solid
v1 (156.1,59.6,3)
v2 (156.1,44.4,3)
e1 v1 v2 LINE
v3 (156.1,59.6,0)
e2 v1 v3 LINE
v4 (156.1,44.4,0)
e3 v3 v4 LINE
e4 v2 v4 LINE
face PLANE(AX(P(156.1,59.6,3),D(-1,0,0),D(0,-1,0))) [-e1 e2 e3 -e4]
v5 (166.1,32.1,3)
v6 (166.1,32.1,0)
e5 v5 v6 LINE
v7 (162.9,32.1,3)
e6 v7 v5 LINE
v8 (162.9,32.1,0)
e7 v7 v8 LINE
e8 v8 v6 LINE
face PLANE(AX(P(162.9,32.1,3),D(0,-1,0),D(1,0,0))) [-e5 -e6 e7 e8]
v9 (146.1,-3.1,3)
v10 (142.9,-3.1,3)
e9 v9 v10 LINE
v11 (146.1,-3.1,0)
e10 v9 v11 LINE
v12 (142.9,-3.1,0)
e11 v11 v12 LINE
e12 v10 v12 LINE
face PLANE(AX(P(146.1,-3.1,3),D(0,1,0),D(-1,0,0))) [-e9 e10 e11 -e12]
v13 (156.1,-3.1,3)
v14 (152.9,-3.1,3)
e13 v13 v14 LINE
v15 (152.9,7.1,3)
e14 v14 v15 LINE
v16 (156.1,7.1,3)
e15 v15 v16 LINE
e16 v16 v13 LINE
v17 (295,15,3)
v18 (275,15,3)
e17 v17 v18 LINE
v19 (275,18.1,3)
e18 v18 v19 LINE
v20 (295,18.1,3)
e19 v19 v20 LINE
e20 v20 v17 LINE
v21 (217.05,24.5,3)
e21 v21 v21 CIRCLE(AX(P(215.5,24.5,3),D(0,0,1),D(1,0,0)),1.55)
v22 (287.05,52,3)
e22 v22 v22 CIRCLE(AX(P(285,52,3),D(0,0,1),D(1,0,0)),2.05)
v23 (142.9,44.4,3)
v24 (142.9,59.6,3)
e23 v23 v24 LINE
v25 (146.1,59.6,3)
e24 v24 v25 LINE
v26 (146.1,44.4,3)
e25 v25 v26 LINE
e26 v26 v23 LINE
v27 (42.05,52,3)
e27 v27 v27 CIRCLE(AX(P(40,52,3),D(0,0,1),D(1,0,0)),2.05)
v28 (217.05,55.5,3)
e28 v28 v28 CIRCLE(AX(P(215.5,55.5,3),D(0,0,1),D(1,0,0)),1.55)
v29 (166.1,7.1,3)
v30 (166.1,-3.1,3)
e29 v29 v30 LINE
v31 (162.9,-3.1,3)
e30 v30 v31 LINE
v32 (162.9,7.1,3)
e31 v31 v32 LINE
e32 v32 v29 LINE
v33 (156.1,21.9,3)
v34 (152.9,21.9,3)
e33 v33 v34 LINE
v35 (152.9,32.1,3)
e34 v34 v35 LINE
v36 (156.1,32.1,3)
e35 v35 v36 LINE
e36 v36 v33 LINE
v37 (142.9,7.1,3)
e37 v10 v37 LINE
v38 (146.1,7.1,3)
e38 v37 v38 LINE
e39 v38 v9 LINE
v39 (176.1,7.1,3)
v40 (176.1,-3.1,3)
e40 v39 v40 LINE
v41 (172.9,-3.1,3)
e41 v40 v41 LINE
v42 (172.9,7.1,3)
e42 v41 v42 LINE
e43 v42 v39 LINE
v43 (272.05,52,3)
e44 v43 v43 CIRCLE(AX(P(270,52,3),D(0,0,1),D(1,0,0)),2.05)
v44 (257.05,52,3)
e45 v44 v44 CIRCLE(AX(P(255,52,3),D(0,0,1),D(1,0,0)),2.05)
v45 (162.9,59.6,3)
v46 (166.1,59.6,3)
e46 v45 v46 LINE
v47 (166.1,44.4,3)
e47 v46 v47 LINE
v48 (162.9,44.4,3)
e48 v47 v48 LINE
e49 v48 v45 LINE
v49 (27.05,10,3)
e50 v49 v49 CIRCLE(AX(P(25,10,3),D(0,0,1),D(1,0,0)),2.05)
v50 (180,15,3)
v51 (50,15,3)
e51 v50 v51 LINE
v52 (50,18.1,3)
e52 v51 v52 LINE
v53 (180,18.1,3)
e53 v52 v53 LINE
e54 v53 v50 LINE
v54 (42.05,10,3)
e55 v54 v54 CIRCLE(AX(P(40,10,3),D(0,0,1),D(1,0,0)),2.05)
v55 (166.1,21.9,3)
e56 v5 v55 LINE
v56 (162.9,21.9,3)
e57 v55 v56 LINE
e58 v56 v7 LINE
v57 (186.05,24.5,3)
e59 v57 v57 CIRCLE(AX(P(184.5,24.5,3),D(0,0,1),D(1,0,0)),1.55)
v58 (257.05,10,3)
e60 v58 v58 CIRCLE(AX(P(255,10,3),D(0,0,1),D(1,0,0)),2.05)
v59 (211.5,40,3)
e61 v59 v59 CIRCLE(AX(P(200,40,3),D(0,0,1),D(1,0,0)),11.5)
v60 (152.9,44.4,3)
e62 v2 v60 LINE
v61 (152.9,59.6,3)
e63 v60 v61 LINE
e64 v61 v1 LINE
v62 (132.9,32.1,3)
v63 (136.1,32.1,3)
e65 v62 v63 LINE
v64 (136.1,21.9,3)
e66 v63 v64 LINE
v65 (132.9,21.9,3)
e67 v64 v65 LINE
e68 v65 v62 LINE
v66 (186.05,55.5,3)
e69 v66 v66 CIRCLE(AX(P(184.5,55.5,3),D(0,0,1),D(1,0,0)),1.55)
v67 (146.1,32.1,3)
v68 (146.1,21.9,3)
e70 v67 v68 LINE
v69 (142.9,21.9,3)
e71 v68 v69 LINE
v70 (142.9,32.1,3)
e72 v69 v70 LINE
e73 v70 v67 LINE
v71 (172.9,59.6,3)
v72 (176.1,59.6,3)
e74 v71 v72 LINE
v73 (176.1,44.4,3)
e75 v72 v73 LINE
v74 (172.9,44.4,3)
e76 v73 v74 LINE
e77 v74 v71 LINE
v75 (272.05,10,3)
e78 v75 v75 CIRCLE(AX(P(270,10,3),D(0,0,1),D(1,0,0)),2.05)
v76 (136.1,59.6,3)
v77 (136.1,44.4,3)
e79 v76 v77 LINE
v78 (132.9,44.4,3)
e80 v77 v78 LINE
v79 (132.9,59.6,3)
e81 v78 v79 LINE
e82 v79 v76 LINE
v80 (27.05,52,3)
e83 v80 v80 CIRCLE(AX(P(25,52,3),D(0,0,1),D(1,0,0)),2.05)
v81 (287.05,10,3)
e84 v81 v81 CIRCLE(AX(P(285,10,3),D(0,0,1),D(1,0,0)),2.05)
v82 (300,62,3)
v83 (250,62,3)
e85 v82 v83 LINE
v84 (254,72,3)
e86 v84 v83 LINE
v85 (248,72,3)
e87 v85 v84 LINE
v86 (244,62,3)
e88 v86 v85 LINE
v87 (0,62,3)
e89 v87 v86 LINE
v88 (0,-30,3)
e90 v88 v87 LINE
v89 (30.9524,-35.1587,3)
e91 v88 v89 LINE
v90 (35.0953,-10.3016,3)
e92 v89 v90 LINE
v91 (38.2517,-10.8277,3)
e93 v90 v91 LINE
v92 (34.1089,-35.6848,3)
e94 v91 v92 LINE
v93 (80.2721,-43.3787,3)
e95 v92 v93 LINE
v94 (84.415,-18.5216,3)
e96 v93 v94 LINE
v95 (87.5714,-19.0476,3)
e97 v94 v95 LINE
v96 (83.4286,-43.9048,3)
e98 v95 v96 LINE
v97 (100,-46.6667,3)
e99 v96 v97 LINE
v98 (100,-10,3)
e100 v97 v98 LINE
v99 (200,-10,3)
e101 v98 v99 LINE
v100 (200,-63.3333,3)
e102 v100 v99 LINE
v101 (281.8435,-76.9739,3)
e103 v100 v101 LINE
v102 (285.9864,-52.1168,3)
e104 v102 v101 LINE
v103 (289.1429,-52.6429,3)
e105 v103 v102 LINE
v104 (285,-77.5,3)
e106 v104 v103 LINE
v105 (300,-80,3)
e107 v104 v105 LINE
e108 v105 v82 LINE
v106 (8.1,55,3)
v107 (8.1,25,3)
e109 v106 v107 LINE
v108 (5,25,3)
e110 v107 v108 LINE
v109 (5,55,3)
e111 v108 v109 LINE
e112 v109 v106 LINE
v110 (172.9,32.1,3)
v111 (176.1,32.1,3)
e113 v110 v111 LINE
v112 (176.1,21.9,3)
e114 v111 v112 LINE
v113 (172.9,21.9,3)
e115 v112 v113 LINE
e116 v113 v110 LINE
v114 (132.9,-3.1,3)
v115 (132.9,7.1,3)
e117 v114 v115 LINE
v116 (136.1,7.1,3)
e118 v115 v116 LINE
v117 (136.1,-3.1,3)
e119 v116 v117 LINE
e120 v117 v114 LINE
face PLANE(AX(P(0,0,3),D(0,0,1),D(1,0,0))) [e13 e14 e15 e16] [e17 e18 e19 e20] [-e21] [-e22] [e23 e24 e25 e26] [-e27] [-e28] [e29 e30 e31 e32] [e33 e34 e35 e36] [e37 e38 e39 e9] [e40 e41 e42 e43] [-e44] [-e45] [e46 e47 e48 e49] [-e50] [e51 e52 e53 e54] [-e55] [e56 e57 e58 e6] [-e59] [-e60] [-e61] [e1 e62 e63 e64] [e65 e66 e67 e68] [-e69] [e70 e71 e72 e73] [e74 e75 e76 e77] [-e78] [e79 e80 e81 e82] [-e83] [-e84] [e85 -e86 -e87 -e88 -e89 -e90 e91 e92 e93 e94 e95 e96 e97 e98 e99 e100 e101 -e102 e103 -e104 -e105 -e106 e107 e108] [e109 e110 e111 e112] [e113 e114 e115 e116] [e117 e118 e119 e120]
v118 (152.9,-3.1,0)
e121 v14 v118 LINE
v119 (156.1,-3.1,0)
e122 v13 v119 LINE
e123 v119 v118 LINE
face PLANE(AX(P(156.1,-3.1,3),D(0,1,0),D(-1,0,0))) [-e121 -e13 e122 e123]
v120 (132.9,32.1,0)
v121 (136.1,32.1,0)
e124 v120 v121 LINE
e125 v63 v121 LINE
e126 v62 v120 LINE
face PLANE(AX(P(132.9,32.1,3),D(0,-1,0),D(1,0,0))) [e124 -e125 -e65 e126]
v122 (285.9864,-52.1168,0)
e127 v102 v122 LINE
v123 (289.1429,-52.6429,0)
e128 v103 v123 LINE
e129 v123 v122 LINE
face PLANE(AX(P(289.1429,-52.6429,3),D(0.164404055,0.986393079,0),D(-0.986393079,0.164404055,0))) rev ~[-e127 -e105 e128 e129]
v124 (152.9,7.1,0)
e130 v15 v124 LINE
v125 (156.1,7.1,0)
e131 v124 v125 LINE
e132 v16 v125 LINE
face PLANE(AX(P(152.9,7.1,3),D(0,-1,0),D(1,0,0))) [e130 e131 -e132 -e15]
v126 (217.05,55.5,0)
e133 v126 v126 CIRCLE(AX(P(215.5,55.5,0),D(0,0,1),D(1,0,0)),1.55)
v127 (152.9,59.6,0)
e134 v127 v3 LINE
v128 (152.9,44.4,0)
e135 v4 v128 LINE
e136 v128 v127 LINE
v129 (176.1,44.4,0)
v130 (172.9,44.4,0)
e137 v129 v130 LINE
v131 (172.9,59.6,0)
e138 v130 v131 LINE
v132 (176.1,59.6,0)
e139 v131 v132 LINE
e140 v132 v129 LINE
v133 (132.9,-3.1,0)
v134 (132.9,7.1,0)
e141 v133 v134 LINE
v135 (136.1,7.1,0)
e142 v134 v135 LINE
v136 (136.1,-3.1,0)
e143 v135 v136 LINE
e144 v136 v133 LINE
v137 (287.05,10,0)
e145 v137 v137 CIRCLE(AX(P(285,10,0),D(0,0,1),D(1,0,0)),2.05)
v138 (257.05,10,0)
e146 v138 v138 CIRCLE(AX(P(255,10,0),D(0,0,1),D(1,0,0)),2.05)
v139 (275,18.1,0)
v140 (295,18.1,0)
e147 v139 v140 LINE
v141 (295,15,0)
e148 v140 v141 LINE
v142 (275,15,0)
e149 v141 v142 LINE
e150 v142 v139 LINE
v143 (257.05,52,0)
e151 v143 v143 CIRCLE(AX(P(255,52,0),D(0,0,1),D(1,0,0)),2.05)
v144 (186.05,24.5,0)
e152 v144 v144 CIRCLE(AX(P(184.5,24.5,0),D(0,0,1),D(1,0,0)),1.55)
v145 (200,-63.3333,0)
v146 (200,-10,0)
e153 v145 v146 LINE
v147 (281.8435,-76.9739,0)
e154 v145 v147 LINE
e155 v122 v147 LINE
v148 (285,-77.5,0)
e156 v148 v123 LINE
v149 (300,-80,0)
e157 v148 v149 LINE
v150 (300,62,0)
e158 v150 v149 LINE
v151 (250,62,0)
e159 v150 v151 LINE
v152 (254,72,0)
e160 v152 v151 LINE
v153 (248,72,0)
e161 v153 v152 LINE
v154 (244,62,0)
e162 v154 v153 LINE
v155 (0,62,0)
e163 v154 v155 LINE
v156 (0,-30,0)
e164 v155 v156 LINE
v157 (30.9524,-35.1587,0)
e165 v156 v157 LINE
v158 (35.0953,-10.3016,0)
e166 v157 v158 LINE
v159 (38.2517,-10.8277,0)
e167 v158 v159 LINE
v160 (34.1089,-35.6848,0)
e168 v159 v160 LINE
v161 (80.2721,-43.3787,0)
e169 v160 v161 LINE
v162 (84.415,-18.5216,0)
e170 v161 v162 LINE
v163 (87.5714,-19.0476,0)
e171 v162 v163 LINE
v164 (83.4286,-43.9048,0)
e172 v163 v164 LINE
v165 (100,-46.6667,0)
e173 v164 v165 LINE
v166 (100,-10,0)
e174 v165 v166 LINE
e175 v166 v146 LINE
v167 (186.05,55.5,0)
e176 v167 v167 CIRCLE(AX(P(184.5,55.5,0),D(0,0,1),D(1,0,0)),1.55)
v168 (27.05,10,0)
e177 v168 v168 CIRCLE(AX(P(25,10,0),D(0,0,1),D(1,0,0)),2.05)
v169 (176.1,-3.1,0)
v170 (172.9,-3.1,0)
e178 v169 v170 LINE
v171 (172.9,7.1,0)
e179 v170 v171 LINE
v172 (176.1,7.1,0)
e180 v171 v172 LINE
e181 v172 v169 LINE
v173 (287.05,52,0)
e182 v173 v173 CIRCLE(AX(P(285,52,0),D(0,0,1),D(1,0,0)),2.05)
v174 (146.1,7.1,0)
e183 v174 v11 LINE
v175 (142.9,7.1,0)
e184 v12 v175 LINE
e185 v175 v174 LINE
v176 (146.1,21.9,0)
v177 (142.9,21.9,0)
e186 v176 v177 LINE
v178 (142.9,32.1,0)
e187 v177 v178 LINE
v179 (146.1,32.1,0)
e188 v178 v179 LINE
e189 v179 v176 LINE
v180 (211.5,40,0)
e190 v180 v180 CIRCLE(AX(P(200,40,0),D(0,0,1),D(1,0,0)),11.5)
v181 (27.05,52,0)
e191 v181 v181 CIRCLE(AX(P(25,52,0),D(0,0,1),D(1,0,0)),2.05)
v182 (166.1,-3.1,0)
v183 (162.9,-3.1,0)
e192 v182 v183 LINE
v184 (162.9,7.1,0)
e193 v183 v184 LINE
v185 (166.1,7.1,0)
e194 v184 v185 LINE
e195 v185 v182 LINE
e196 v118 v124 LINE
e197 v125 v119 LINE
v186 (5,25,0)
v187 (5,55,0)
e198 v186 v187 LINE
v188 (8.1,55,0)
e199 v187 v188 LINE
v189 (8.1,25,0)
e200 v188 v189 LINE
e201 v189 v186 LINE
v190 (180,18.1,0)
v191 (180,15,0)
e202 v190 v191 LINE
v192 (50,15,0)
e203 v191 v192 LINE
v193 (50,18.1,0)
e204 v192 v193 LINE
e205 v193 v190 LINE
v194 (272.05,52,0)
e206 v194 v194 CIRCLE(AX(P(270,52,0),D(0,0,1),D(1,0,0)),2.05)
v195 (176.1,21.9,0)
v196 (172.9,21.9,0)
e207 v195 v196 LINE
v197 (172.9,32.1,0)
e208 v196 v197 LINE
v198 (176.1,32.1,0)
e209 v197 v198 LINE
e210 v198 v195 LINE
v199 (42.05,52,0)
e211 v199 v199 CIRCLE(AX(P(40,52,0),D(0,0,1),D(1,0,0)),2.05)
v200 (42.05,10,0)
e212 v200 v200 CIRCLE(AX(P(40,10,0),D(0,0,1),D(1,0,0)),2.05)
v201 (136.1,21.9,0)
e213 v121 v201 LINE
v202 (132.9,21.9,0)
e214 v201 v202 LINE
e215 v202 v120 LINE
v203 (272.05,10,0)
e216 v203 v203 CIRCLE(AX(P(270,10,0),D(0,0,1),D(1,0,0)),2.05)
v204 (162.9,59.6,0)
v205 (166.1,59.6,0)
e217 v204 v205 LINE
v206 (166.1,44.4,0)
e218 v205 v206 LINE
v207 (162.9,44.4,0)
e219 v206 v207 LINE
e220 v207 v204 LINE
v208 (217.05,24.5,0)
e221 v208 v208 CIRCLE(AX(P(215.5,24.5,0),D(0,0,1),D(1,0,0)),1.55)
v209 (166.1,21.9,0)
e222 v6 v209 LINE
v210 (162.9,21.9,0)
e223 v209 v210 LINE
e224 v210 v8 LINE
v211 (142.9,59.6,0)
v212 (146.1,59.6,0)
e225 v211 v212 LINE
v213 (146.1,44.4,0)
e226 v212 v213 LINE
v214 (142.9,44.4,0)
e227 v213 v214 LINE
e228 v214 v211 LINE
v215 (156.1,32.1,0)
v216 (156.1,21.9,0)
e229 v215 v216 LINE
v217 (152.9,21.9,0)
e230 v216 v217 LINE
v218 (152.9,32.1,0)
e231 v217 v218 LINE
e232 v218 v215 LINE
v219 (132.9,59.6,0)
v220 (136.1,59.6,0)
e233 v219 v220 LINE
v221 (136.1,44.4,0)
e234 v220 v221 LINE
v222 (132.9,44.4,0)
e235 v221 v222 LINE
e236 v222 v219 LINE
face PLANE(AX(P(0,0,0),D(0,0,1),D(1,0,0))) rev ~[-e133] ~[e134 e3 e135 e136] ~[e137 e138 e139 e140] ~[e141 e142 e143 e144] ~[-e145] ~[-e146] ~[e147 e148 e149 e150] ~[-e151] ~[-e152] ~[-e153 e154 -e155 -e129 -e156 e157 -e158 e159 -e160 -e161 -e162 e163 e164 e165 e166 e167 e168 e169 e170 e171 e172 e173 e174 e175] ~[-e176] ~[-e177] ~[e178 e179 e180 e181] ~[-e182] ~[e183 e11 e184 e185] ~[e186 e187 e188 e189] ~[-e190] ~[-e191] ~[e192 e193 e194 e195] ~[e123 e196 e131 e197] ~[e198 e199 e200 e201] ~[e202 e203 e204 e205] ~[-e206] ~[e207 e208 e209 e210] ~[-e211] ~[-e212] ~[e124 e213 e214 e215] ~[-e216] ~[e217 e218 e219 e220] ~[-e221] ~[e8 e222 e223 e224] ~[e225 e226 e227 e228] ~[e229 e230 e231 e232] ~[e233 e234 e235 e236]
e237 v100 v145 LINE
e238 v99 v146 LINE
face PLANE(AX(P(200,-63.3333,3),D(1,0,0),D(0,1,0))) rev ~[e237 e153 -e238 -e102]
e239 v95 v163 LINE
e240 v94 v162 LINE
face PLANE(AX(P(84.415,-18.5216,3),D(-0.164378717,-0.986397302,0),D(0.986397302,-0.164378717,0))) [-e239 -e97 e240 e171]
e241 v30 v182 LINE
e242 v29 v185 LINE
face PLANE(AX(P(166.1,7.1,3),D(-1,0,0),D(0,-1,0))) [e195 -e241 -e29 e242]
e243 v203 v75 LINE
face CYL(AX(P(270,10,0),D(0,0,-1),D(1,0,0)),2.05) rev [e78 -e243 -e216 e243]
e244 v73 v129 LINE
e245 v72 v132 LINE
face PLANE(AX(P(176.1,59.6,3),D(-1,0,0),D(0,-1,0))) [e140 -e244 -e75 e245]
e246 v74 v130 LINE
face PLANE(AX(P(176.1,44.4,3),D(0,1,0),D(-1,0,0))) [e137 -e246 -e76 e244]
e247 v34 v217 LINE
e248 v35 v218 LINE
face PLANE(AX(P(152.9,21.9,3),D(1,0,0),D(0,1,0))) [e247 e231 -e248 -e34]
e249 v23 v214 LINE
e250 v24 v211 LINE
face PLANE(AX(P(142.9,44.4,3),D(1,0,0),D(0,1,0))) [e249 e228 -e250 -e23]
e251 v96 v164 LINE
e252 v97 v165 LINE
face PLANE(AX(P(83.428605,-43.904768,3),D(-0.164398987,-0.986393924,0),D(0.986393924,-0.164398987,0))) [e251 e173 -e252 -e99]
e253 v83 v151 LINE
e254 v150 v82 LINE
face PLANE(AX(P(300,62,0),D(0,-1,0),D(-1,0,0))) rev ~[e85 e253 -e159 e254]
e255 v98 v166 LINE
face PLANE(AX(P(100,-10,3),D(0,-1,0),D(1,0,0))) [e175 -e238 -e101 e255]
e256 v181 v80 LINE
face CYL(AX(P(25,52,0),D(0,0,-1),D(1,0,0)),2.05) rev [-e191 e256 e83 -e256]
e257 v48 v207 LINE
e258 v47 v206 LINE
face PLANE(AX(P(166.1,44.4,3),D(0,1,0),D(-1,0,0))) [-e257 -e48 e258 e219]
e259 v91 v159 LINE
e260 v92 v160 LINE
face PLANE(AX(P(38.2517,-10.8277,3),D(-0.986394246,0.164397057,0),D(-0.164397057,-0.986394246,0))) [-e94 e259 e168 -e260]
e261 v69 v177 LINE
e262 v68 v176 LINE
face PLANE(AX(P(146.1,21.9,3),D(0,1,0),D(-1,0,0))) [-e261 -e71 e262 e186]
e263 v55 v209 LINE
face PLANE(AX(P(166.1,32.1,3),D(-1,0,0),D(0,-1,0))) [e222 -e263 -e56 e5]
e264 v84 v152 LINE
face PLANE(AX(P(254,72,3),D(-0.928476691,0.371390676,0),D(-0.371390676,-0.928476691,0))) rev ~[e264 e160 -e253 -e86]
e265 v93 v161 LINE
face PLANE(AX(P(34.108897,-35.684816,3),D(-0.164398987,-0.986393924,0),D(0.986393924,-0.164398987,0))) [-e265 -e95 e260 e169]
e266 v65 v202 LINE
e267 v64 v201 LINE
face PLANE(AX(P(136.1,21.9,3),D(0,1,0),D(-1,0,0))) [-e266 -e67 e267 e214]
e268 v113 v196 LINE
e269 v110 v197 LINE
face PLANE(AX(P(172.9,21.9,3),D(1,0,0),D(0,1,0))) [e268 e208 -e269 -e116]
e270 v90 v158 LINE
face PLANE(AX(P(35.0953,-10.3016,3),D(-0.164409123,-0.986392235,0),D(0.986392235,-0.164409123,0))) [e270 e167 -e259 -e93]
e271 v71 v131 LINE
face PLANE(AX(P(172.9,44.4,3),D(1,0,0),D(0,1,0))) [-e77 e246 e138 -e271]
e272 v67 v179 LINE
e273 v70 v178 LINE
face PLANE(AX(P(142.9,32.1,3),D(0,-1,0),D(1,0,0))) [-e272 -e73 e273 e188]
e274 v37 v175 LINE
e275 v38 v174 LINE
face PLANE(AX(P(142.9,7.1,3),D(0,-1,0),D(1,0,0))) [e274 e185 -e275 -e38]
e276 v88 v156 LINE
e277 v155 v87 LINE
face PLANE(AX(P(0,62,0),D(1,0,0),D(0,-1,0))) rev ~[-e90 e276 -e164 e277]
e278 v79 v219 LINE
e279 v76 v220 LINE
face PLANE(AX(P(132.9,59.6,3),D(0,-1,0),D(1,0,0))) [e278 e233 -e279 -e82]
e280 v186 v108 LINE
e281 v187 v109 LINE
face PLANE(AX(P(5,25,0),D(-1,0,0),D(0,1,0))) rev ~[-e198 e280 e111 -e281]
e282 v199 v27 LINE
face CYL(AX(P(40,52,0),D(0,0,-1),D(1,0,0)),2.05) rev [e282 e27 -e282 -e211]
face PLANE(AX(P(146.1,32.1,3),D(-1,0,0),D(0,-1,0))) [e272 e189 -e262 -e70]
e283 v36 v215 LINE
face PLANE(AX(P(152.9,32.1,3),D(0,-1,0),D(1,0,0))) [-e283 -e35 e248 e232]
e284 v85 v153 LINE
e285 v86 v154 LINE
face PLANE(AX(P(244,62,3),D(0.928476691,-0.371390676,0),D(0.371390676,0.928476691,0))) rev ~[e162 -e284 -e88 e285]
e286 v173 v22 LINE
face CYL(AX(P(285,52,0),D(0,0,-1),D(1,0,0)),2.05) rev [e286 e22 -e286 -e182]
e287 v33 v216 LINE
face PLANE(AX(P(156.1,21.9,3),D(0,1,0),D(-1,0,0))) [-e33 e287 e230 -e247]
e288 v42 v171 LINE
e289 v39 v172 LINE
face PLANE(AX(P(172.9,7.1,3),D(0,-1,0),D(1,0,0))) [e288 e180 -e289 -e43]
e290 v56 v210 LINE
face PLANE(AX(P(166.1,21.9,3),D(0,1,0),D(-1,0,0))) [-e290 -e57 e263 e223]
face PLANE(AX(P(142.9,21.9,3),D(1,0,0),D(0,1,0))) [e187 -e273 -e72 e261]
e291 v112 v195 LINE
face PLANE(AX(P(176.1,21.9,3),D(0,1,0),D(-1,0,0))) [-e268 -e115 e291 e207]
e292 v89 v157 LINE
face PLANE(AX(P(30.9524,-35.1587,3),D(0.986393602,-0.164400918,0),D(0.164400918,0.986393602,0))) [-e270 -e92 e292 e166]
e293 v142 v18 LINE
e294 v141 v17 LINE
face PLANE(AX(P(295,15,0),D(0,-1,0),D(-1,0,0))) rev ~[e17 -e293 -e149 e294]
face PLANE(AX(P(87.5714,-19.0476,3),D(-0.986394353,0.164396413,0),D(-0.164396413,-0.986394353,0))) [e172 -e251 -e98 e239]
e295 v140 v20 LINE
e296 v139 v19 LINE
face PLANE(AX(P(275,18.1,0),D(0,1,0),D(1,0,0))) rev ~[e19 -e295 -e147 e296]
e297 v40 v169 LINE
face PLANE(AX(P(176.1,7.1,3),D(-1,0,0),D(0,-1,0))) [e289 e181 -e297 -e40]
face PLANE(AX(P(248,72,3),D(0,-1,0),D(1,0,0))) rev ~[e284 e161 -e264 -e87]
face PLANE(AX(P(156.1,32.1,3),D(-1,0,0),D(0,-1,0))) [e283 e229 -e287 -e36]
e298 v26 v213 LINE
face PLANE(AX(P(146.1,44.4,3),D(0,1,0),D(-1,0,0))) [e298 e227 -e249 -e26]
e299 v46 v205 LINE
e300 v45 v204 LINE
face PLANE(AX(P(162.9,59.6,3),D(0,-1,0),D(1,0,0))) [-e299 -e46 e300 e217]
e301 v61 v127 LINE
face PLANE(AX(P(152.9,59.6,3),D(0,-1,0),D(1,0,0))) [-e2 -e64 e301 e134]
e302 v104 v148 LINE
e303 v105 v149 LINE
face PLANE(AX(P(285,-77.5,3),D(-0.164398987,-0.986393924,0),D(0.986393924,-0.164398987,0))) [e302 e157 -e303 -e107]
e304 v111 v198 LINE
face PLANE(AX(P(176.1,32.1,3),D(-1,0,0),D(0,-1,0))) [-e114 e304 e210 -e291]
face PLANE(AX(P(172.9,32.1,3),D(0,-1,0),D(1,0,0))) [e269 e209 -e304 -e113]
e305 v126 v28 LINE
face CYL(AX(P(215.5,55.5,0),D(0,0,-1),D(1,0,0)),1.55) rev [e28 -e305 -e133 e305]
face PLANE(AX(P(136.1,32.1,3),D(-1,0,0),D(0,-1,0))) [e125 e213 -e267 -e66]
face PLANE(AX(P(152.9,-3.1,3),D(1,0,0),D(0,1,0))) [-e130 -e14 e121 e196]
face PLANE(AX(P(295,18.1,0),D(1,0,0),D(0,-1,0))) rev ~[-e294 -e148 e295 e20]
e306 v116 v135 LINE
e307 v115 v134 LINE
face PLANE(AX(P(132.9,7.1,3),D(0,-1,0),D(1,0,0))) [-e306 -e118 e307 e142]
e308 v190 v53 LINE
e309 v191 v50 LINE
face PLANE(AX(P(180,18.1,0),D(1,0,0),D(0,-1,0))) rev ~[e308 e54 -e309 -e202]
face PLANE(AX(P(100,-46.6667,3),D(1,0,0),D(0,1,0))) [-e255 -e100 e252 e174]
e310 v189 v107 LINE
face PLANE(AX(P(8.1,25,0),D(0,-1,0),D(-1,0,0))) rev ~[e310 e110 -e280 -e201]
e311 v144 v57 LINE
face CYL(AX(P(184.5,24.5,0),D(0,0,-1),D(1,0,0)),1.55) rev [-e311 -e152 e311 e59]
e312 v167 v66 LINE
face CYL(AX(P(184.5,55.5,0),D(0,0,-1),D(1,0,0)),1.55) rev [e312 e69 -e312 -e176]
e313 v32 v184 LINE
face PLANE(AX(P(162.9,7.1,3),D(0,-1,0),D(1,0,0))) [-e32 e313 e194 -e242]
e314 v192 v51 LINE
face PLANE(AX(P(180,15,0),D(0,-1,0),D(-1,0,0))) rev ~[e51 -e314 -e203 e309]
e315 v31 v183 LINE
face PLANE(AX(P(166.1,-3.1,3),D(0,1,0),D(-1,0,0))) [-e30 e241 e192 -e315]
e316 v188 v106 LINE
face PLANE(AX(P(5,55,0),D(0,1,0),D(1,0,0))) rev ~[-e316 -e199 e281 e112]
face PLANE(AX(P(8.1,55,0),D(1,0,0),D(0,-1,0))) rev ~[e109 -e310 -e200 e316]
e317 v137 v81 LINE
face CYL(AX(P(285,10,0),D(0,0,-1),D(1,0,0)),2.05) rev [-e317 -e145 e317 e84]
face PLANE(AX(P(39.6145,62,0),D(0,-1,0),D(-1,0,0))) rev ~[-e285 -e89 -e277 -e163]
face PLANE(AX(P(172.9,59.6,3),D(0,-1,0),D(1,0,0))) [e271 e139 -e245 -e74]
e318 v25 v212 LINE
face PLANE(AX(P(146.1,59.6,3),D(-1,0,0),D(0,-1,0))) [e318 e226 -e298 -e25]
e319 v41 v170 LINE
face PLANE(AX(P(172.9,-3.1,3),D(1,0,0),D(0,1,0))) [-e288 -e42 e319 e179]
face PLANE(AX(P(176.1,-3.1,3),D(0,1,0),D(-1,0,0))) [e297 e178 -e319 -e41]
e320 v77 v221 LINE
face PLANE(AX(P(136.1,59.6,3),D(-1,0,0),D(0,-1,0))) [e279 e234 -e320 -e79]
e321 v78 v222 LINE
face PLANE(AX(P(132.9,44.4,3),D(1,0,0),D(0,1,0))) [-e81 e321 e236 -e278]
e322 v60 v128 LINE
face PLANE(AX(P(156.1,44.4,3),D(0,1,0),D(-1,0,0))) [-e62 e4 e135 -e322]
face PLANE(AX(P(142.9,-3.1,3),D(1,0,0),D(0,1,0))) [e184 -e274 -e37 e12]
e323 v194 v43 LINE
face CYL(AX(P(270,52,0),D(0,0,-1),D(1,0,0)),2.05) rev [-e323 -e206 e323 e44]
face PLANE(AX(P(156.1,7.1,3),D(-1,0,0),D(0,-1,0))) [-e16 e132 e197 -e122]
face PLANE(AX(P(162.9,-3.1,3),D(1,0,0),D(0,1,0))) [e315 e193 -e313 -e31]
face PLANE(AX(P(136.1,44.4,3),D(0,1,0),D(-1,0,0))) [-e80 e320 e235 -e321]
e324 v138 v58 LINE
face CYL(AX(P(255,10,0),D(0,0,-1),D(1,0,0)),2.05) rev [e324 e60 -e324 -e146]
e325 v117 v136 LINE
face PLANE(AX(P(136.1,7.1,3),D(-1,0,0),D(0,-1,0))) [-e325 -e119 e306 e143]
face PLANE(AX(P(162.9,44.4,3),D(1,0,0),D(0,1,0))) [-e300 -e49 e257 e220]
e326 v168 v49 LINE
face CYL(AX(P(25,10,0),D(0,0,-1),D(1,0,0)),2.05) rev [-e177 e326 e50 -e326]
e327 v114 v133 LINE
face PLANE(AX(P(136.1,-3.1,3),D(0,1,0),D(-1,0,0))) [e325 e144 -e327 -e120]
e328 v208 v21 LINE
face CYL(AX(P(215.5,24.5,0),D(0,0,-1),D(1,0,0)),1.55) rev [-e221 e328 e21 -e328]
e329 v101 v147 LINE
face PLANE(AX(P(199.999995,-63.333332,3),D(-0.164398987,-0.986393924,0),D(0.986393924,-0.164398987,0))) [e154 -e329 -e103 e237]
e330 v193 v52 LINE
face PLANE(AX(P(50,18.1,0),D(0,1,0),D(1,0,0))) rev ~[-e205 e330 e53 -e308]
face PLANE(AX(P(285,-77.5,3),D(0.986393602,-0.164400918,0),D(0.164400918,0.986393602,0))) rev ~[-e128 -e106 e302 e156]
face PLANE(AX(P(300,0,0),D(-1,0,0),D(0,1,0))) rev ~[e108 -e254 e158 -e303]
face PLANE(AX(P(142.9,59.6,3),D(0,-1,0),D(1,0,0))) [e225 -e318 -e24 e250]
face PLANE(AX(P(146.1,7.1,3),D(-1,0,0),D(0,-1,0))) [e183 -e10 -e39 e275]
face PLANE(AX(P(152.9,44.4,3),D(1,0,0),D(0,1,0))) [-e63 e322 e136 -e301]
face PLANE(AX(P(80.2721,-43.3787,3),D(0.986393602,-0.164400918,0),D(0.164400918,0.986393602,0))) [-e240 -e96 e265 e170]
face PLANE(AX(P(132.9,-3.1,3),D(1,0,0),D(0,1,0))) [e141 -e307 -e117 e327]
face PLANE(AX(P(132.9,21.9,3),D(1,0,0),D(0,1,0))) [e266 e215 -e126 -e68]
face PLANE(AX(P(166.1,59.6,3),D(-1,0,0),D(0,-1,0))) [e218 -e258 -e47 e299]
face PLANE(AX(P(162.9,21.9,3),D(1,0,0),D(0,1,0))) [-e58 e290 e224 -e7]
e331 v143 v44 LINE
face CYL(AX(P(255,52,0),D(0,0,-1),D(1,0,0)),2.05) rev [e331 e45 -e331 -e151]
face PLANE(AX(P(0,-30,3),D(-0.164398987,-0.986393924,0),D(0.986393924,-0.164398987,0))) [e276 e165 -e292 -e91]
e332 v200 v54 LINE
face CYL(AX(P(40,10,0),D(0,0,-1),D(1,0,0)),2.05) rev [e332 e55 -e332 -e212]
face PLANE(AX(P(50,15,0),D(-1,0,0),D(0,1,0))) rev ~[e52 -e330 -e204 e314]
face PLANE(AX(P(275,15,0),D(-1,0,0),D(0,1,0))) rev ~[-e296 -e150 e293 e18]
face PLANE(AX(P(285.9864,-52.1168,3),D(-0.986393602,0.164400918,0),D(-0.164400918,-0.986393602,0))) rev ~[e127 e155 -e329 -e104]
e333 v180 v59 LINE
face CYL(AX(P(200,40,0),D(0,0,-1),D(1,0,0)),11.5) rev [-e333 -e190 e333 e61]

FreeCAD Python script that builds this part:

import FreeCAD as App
import Part
import Sketcher
Q = App.Units.Quantity


def add_polygon(sketch, points):
    """Adds a closed chain of lines whose ends are joined by coincident constraints."""
    first, n = sketch.GeometryCount, len(points)
    for a, b in zip(points, points[1:] + points[:1]):
        sketch.addGeometry(Part.LineSegment(App.Vector(*a, 0), App.Vector(*b, 0)), False)
    for i in range(n):
        sketch.addConstraint(Sketcher.Constraint("Coincident", first + i, 2, first + (i + 1) % n, 1))

doc = App.newDocument("Part")
body = doc.addObject("PartDesign::Body", "Body")

# Sketch on XY plane
sketch1 = doc.addObject("Sketcher::SketchObject", "Sketch")
body.addObject(sketch1)
sketch1.AttachmentSupport = (doc.XY_Plane, [""])
sketch1.MapMode = "FlatFace"
add_polygon(sketch1, [(0, 62), (0, 0), (300, 0), (300, 62)])  # lines 0-3
sketch1.addGeometry(Part.Circle(App.Vector(25, 10, 0), App.Vector(0, 0, 1), 2.05), False)  # 4
sketch1.addGeometry(Part.Circle(App.Vector(40, 10, 0), App.Vector(0, 0, 1), 2.05), False)  # 5
add_polygon(sketch1, [(50, 15), (50, 18.1), (180, 18.1), (180, 15)])  # lines 6-9
sketch1.addGeometry(Part.Circle(App.Vector(255, 10, 0), App.Vector(0, 0, 1), 2.05), False)  # 10
sketch1.addGeometry(Part.Circle(App.Vector(270, 10, 0), App.Vector(0, 0, 1), 2.05), False)  # 11
sketch1.addGeometry(Part.Circle(App.Vector(285, 10, 0), App.Vector(0, 0, 1), 2.05), False)  # 12
sketch1.addGeometry(Part.Circle(App.Vector(184.5, 24.5, 0), App.Vector(0, 0, 1), 1.55), False)  # 13
sketch1.addGeometry(Part.Circle(App.Vector(215.5, 24.5, 0), App.Vector(0, 0, 1), 1.55), False)  # 14
add_polygon(sketch1, [(275, 15), (275, 18.1), (295, 18.1), (295, 15)])  # lines 15-18
add_polygon(sketch1, [(8.1, 55), (8.1, 25), (5, 25), (5, 55)])  # lines 19-22
sketch1.addGeometry(Part.Circle(App.Vector(25, 52, 0), App.Vector(0, 0, 1), 2.05), False)  # 23
sketch1.addGeometry(Part.Circle(App.Vector(40, 52, 0), App.Vector(0, 0, 1), 2.05), False)  # 24
sketch1.addGeometry(Part.Circle(App.Vector(200, 40, 0), App.Vector(0, 0, 1), 11.5), False)  # 25
sketch1.addGeometry(Part.Circle(App.Vector(184.5, 55.5, 0), App.Vector(0, 0, 1), 1.55), False)  # 26
sketch1.addGeometry(Part.Circle(App.Vector(215.5, 55.5, 0), App.Vector(0, 0, 1), 1.55), False)  # 27
sketch1.addGeometry(Part.Circle(App.Vector(255, 52, 0), App.Vector(0, 0, 1), 2.05), False)  # 28
sketch1.addGeometry(Part.Circle(App.Vector(270, 52, 0), App.Vector(0, 0, 1), 2.05), False)  # 29
sketch1.addGeometry(Part.Circle(App.Vector(285, 52, 0), App.Vector(0, 0, 1), 2.05), False)  # 30
sketch1.addConstraint(Sketcher.Constraint("Vertical", 0))
sketch1.addConstraint(Sketcher.Constraint("Horizontal", 1))
sketch1.addConstraint(Sketcher.Constraint("Vertical", 2))
sketch1.addConstraint(Sketcher.Constraint("Horizontal", 3))
sketch1.addConstraint(Sketcher.Constraint("Vertical", 6))
sketch1.addConstraint(Sketcher.Constraint("Horizontal", 7))
sketch1.addConstraint(Sketcher.Constraint("Vertical", 8))
sketch1.addConstraint(Sketcher.Constraint("Horizontal", 9))
sketch1.addConstraint(Sketcher.Constraint("Vertical", 15))
sketch1.addConstraint(Sketcher.Constraint("Horizontal", 16))
sketch1.addConstraint(Sketcher.Constraint("Vertical", 17))
sketch1.addConstraint(Sketcher.Constraint("Horizontal", 18))
sketch1.addConstraint(Sketcher.Constraint("Vertical", 19))
sketch1.addConstraint(Sketcher.Constraint("Horizontal", 20))
sketch1.addConstraint(Sketcher.Constraint("Vertical", 21))
sketch1.addConstraint(Sketcher.Constraint("Horizontal", 22))
sketch1.addConstraint(Sketcher.Constraint("Coincident", 0, 2, -1, 1))
sketch1.addConstraint(Sketcher.Constraint("Equal", 4, 5))
sketch1.addConstraint(Sketcher.Constraint("Equal", 5, 10))
sketch1.addConstraint(Sketcher.Constraint("Equal", 10, 11))
sketch1.addConstraint(Sketcher.Constraint("Equal", 11, 12))
sketch1.addConstraint(Sketcher.Constraint("Equal", 13, 14))
sketch1.addConstraint(Sketcher.Constraint("Equal", 12, 23))
sketch1.addConstraint(Sketcher.Constraint("Equal", 23, 24))
sketch1.addConstraint(Sketcher.Constraint("Equal", 14, 26))
sketch1.addConstraint(Sketcher.Constraint("Equal", 26, 27))
sketch1.addConstraint(Sketcher.Constraint("Equal", 24, 28))
sketch1.addConstraint(Sketcher.Constraint("Equal", 28, 29))
sketch1.addConstraint(Sketcher.Constraint("Equal", 29, 30))
sketch1.addConstraint(Sketcher.Constraint("Horizontal", 4, 3, 5, 3))
sketch1.addConstraint(Sketcher.Constraint("Horizontal", 5, 3, 10, 3))
sketch1.addConstraint(Sketcher.Constraint("Horizontal", 10, 3, 11, 3))
sketch1.addConstraint(Sketcher.Constraint("Horizontal", 11, 3, 12, 3))
sketch1.addConstraint(Sketcher.Constraint("Horizontal", 13, 3, 14, 3))
sketch1.addConstraint(Sketcher.Constraint("Horizontal", 23, 3, 24, 3))
sketch1.addConstraint(Sketcher.Constraint("Horizontal", 26, 3, 27, 3))
sketch1.addConstraint(Sketcher.Constraint("Horizontal", 24, 3, 28, 3))
sketch1.addConstraint(Sketcher.Constraint("Horizontal", 28, 3, 29, 3))
sketch1.addConstraint(Sketcher.Constraint("Horizontal", 29, 3, 30, 3))
sketch1.addConstraint(Sketcher.Constraint("Horizontal", 7, 2, 15, 2))
sketch1.addConstraint(Sketcher.Constraint("Horizontal", 9, 2, 17, 2))
sketch1.addConstraint(Sketcher.Constraint("Vertical", 4, 3, 23, 3))
sketch1.addConstraint(Sketcher.Constraint("Vertical", 5, 3, 24, 3))
sketch1.addConstraint(Sketcher.Constraint("Vertical", 13, 3, 26, 3))
sketch1.addConstraint(Sketcher.Constraint("Vertical", 14, 3, 27, 3))
sketch1.addConstraint(Sketcher.Constraint("Vertical", 10, 3, 28, 3))
sketch1.addConstraint(Sketcher.Constraint("Vertical", 11, 3, 29, 3))
sketch1.addConstraint(Sketcher.Constraint("Vertical", 12, 3, 30, 3))
sketch1.addConstraint(Sketcher.Constraint("Equal", 22, 6))
sketch1.addConstraint(Sketcher.Constraint("Diameter", 25, Q("23 mm")))
sketch1.addConstraint(Sketcher.Constraint("Diameter", 4, Q("4.1 mm")))
sketch1.addConstraint(Sketcher.Constraint("Diameter", 13, Q("3.1 mm")))
sketch1.addConstraint(Sketcher.Constraint("DistanceX", 1, 1, 1, 2, Q("300 mm")))
sketch1.addConstraint(Sketcher.Constraint("DistanceX", 7, 1, 7, 2, Q("130 mm")))
sketch1.addConstraint(Sketcher.Constraint("DistanceX", 16, 1, 16, 2, Q("20 mm")))
sketch1.addConstraint(Sketcher.Constraint("DistanceY", 0, 2, 0, 1, Q("62 mm")))
sketch1.addConstraint(Sketcher.Constraint("DistanceX", 20, 2, 20, 1, Q("3.1 mm")))
sketch1.addConstraint(Sketcher.Constraint("DistanceY", -1, 1, 4, 3, Q("10 mm")))
sketch1.addConstraint(Sketcher.Constraint("DistanceX", -1, 1, 5, 3, Q("40 mm")))
sketch1.addConstraint(Sketcher.Constraint("DistanceY", -1, 1, 25, 3, Q("40 mm")))
sketch1.addConstraint(Sketcher.Constraint("DistanceX", -1, 1, 6, 2, Q("50 mm")))
sketch1.addConstraint(Sketcher.Constraint("DistanceY", -1, 1, 8, 2, Q("15 mm")))
sketch1.addConstraint(Sketcher.Constraint("DistanceX", -1, 1, 20, 2, Q("5 mm")))
sketch1.addConstraint(Sketcher.Constraint("DistanceX", 4, 3, 5, 3, Q("15 mm")))
sketch1.addConstraint(Sketcher.Constraint("DistanceX", 10, 3, 11, 3, Q("15 mm")))
sketch1.addConstraint(Sketcher.Constraint("DistanceX", 11, 3, 12, 3, Q("15 mm")))
sketch1.addConstraint(Sketcher.Constraint("DistanceX", 13, 3, 14, 3, Q("31 mm")))
sketch1.addConstraint(Sketcher.Constraint("DistanceY", 13, 3, 26, 3, Q("31 mm")))
sketch1.addConstraint(Sketcher.Constraint("DistanceX", 12, 3, 1, 2, Q("15 mm")))
sketch1.addConstraint(Sketcher.Constraint("DistanceY", 30, 3, 2, 2, Q("10 mm")))
sketch1.addConstraint(Sketcher.Constraint("DistanceX", 7, 2, 25, 3, Q("20 mm")))
sketch1.addConstraint(Sketcher.Constraint("DistanceX", 11, 3, 15, 2, Q("5 mm")))
sketch1.addConstraint(Sketcher.Constraint("DistanceY", 4, 3, 19, 2, Q("15 mm")))
sketch1.addConstraint(Sketcher.Constraint("DistanceX", 13, 3, 25, 3, Q("15.5 mm")))
sketch1.addConstraint(Sketcher.Constraint("DistanceY", 13, 3, 25, 3, Q("15.5 mm")))
sketch1.addConstraint(Sketcher.Constraint("DistanceY", 19, 2, 19, 1, Q("30 mm")))
pad1 = doc.addObject("PartDesign::Pad", "Pad")
body.addObject(pad1)
pad1.Profile = sketch1
pad1.Length = 3

# Sketch on XY plane
sketch2 = doc.addObject("Sketcher::SketchObject", "Sketch001")
body.addObject(sketch2)
sketch2.AttachmentSupport = (doc.XY_Plane, [""])
sketch2.MapMode = "FlatFace"
sketch2.AttachmentOffset = App.Placement(App.Vector(0, 0, 3), App.Rotation())
add_polygon(sketch2, [(244, 62), (250, 62), (254, 72), (248, 72)])  # lines 0-3
sketch2.addConstraint(Sketcher.Constraint("Horizontal", 0))
sketch2.addConstraint(Sketcher.Constraint("Horizontal", 2))
sketch2.addConstraint(Sketcher.Constraint("Parallel", 1, 3))
sketch2.addConstraint(Sketcher.Constraint("DistanceX", 0, 1, 0, 2, Q("6 mm")))
sketch2.addConstraint(Sketcher.Constraint("DistanceX", 0, 2, 1, 2, Q("4 mm")))
sketch2.addConstraint(Sketcher.Constraint("DistanceY", 0, 2, 1, 2, Q("10 mm")))
sketch2.addConstraint(Sketcher.Constraint("DistanceX", -1, 1, 0, 2, Q("250 mm")))
sketch2.addConstraint(Sketcher.Constraint("DistanceY", -1, 1, 0, 2, Q("62 mm")))
pad2 = doc.addObject("PartDesign::Pad", "Pad001")
body.addObject(pad2)
pad2.Profile = sketch2
pad2.Length = 3
pad2.Reversed = True

# Sketch on XY plane
sketch3 = doc.addObject("Sketcher::SketchObject", "Sketch002")
body.addObject(sketch3)
sketch3.AttachmentSupport = (doc.XY_Plane, [""])
sketch3.MapMode = "FlatFace"
sketch3.AttachmentOffset = App.Placement(App.Vector(0, 0, 3), App.Rotation())
add_polygon(sketch3, [(0, 0), (0, -30), (30.9524, -35.1587), (35.0953, -10.3016), (38.2517, -10.8277), (34.108897, -35.684816), (80.2721, -43.3787), (84.415, -18.5216), (87.5714, -19.0476), (83.428605, -43.904768), (100, -46.6667), (100, -10), (200, -10), (199.999995, -63.333332), (281.8435, -76.9739), (285.9864, -52.1168), (289.1429, -52.6429), (285, -77.5), (300, -80), (300, 0)])  # lines 0-19
sketch3.addConstraint(Sketcher.Constraint("Vertical", 0))
sketch3.addConstraint(Sketcher.Constraint("Vertical", 10))
sketch3.addConstraint(Sketcher.Constraint("Horizontal", 11))
sketch3.addConstraint(Sketcher.Constraint("Vertical", 12))
sketch3.addConstraint(Sketcher.Constraint("Vertical", 18))
sketch3.addConstraint(Sketcher.Constraint("Horizontal", 19))
sketch3.addConstraint(Sketcher.Constraint("Coincident", 19, 2, -1, 1))
sketch3.addConstraint(Sketcher.Constraint("Perpendicular", 1, 2))
sketch3.addConstraint(Sketcher.Constraint("Perpendicular", 2, 3))
sketch3.addConstraint(Sketcher.Constraint("Perpendicular", 3, 4))
sketch3.addConstraint(Sketcher.Constraint("Perpendicular", 4, 5))
sketch3.addConstraint(Sketcher.Constraint("Perpendicular", 5, 6))
sketch3.addConstraint(Sketcher.Constraint("Perpendicular", 6, 7))
sketch3.addConstraint(Sketcher.Constraint("Perpendicular", 7, 8))
sketch3.addConstraint(Sketcher.Constraint("Perpendicular", 8, 9))
sketch3.addConstraint(Sketcher.Constraint("Parallel", 9, 13))
sketch3.addConstraint(Sketcher.Constraint("Perpendicular", 13, 14))
sketch3.addConstraint(Sketcher.Constraint("Perpendicular", 14, 15))
sketch3.addConstraint(Sketcher.Constraint("Perpendicular", 15, 16))
sketch3.addConstraint(Sketcher.Constraint("Perpendicular", 16, 17))
sketch3.addConstraint(Sketcher.Constraint("Equal", 2, 4))
sketch3.addConstraint(Sketcher.Constraint("Equal", 4, 6))
sketch3.addConstraint(Sketcher.Constraint("Equal", 3, 7))
sketch3.addConstraint(Sketcher.Constraint("Equal", 6, 8))
sketch3.addConstraint(Sketcher.Constraint("Equal", 8, 14))
sketch3.addConstraint(Sketcher.Constraint("Equal", 7, 15))
sketch3.addConstraint(Sketcher.Constraint("Equal", 14, 16))
sketch3.addConstraint(Sketcher.Constraint("DistanceX", 11, 1, 11, 2, Q("100 mm")))
sketch3.addConstraint(Sketcher.Constraint("DistanceY", 0, 2, 0, 1, Q("30 mm")))
sketch3.addConstraint(Sketcher.Constraint("DistanceY", 18, 1, 18, 2, Q("80 mm")))
sketch3.addConstraint(Sketcher.Constraint("DistanceX", -1, 1, 9, 2, Q("100 mm")))
sketch3.addConstraint(Sketcher.Constraint("DistanceY", 10, 2, -1, 1, Q("10 mm")))
sketch3.addConstraint(Sketcher.Constraint("DistanceX", 16, 2, 17, 2, Q("15 mm")))
sketch3.addConstraint(Sketcher.Constraint("DistanceX", 12, 2, 17, 2, Q("100 mm")))
sketch3.addConstraint(Sketcher.Constraint("Distance", 2, Q("25.2 mm")))
sketch3.addConstraint(Sketcher.Constraint("Distance", 3, Q("3.2 mm")))
sketch3.addConstraint(Sketcher.Constraint("Distance", 5, Q("46.8 mm")))
sketch3.addConstraint(Sketcher.Constraint("Distance", 9, Q("16.8 mm")))
sketch3.addConstraint(Sketcher.Constraint("DistanceY", 16, 2, -1, 1, Q("77.5 mm")))
pad3 = doc.addObject("PartDesign::Pad", "Pad002")
body.addObject(pad3)
pad3.Profile = sketch3
pad3.Length = 3
pad3.Reversed = True

# Sketch on XY plane
sketch4 = doc.addObject("Sketcher::SketchObject", "Sketch003")
body.addObject(sketch4)
sketch4.AttachmentSupport = (doc.XY_Plane, [""])
sketch4.MapMode = "FlatFace"
sketch4.AttachmentOffset = App.Placement(App.Vector(0, 0, 3), App.Rotation())
add_polygon(sketch4, [(176.1, 59.6), (172.9, 59.6), (172.9, 44.4), (176.1, 44.4)])  # lines 0-3
add_polygon(sketch4, [(176.1, 32.1), (172.9, 32.1), (172.9, 21.9), (176.1, 21.9)])  # lines 4-7
add_polygon(sketch4, [(166.1, 59.6), (162.9, 59.6), (162.9, 44.4), (166.1, 44.4)])  # lines 8-11
add_polygon(sketch4, [(166.1, 32.1), (162.9, 32.1), (162.9, 21.9), (166.1, 21.9)])  # lines 12-15
add_polygon(sketch4, [(156.1, 59.6), (152.9, 59.6), (152.9, 44.4), (156.1, 44.4)])  # lines 16-19
add_polygon(sketch4, [(156.1, 32.1), (152.9, 32.1), (152.9, 21.9), (156.1, 21.9)])  # lines 20-23
add_polygon(sketch4, [(146.1, 59.6), (142.9, 59.6), (142.9, 44.4), (146.1, 44.4)])  # lines 24-27
add_polygon(sketch4, [(146.1, 32.1), (142.9, 32.1), (142.9, 21.9), (146.1, 21.9)])  # lines 28-31
add_polygon(sketch4, [(136.1, 59.6), (132.9, 59.6), (132.9, 44.4), (136.1, 44.4)])  # lines 32-35
add_polygon(sketch4, [(136.1, 32.1), (132.9, 32.1), (132.9, 21.9), (136.1, 21.9)])  # lines 36-39
add_polygon(sketch4, [(176.1, 7.1), (172.9, 7.1), (172.9, -3.1), (176.1, -3.1)])  # lines 40-43
add_polygon(sketch4, [(166.1, -3.1), (166.1, 7.1), (162.9, 7.1), (162.9, -3.1)])  # lines 44-47
add_polygon(sketch4, [(156.1, -3.1), (156.1, 7.1), (152.9, 7.1), (152.9, -3.1)])  # lines 48-51
add_polygon(sketch4, [(146.1, -3.1), (146.1, 7.1), (142.9, 7.1), (142.9, -3.1)])  # lines 52-55
add_polygon(sketch4, [(136.1, -3.1), (136.1, 7.1), (132.9, 7.1), (132.9, -3.1)])  # lines 56-59
sketch4.addConstraint(Sketcher.Constraint("Horizontal", 0))
sketch4.addConstraint(Sketcher.Constraint("Vertical", 1))
sketch4.addConstraint(Sketcher.Constraint("Horizontal", 2))
sketch4.addConstraint(Sketcher.Constraint("Vertical", 3))
sketch4.addConstraint(Sketcher.Constraint("Horizontal", 4))
sketch4.addConstraint(Sketcher.Constraint("Vertical", 5))
sketch4.addConstraint(Sketcher.Constraint("Horizontal", 6))
sketch4.addConstraint(Sketcher.Constraint("Vertical", 7))
sketch4.addConstraint(Sketcher.Constraint("Horizontal", 8))
sketch4.addConstraint(Sketcher.Constraint("Vertical", 9))
sketch4.addConstraint(Sketcher.Constraint("Horizontal", 10))
sketch4.addConstraint(Sketcher.Constraint("Vertical", 11))
sketch4.addConstraint(Sketcher.Constraint("Horizontal", 12))
sketch4.addConstraint(Sketcher.Constraint("Vertical", 13))
sketch4.addConstraint(Sketcher.Constraint("Horizontal", 14))
sketch4.addConstraint(Sketcher.Constraint("Vertical", 15))
sketch4.addConstraint(Sketcher.Constraint("Horizontal", 16))
sketch4.addConstraint(Sketcher.Constraint("Vertical", 17))
sketch4.addConstraint(Sketcher.Constraint("Horizontal", 18))
sketch4.addConstraint(Sketcher.Constraint("Vertical", 19))
sketch4.addConstraint(Sketcher.Constraint("Horizontal", 20))
sketch4.addConstraint(Sketcher.Constraint("Vertical", 21))
sketch4.addConstraint(Sketcher.Constraint("Horizontal", 22))
sketch4.addConstraint(Sketcher.Constraint("Vertical", 23))
sketch4.addConstraint(Sketcher.Constraint("Horizontal", 24))
sketch4.addConstraint(Sketcher.Constraint("Vertical", 25))
sketch4.addConstraint(Sketcher.Constraint("Horizontal", 26))
sketch4.addConstraint(Sketcher.Constraint("Vertical", 27))
sketch4.addConstraint(Sketcher.Constraint("Horizontal", 28))
sketch4.addConstraint(Sketcher.Constraint("Vertical", 29))
sketch4.addConstraint(Sketcher.Constraint("Horizontal", 30))
sketch4.addConstraint(Sketcher.Constraint("Vertical", 31))
sketch4.addConstraint(Sketcher.Constraint("Horizontal", 32))
sketch4.addConstraint(Sketcher.Constraint("Vertical", 33))
sketch4.addConstraint(Sketcher.Constraint("Horizontal", 34))
sketch4.addConstraint(Sketcher.Constraint("Vertical", 35))
sketch4.addConstraint(Sketcher.Constraint("Horizontal", 36))
sketch4.addConstraint(Sketcher.Constraint("Vertical", 37))
sketch4.addConstraint(Sketcher.Constraint("Horizontal", 38))
sketch4.addConstraint(Sketcher.Constraint("Vertical", 39))
sketch4.addConstraint(Sketcher.Constraint("Horizontal", 40))
sketch4.addConstraint(Sketcher.Constraint("Vertical", 41))
sketch4.addConstraint(Sketcher.Constraint("Horizontal", 42))
sketch4.addConstraint(Sketcher.Constraint("Vertical", 43))
sketch4.addConstraint(Sketcher.Constraint("Vertical", 44))
sketch4.addConstraint(Sketcher.Constraint("Horizontal", 45))
sketch4.addConstraint(Sketcher.Constraint("Vertical", 46))
sketch4.addConstraint(Sketcher.Constraint("Horizontal", 47))
sketch4.addConstraint(Sketcher.Constraint("Vertical", 48))
sketch4.addConstraint(Sketcher.Constraint("Horizontal", 49))
sketch4.addConstraint(Sketcher.Constraint("Vertical", 50))
sketch4.addConstraint(Sketcher.Constraint("Horizontal", 51))
sketch4.addConstraint(Sketcher.Constraint("Vertical", 52))
sketch4.addConstraint(Sketcher.Constraint("Horizontal", 53))
sketch4.addConstraint(Sketcher.Constraint("Vertical", 54))
sketch4.addConstraint(Sketcher.Constraint("Horizontal", 55))
sketch4.addConstraint(Sketcher.Constraint("Vertical", 56))
sketch4.addConstraint(Sketcher.Constraint("Horizontal", 57))
sketch4.addConstraint(Sketcher.Constraint("Vertical", 58))
sketch4.addConstraint(Sketcher.Constraint("Horizontal", 59))
sketch4.addConstraint(Sketcher.Constraint("Horizontal", 3, 2, 8, 2))
sketch4.addConstraint(Sketcher.Constraint("Horizontal", 2, 2, 9, 2))
sketch4.addConstraint(Sketcher.Constraint("Horizontal", 7, 2, 12, 2))
sketch4.addConstraint(Sketcher.Constraint("Horizontal", 6, 2, 13, 2))
sketch4.addConstraint(Sketcher.Constraint("Horizontal", 11, 2, 16, 2))
sketch4.addConstraint(Sketcher.Constraint("Horizontal", 10, 2, 17, 2))
sketch4.addConstraint(Sketcher.Constraint("Horizontal", 15, 2, 20, 2))
sketch4.addConstraint(Sketcher.Constraint("Horizontal", 14, 2, 21, 2))
sketch4.addConstraint(Sketcher.Constraint("Horizontal", 19, 2, 24, 2))
sketch4.addConstraint(Sketcher.Constraint("Horizontal", 18, 2, 25, 2))
sketch4.addConstraint(Sketcher.Constraint("Horizontal", 23, 2, 28, 2))
sketch4.addConstraint(Sketcher.Constraint("Horizontal", 22, 2, 29, 2))
sketch4.addConstraint(Sketcher.Constraint("Horizontal", 27, 2, 32, 2))
sketch4.addConstraint(Sketcher.Constraint("Horizontal", 26, 2, 33, 2))
sketch4.addConstraint(Sketcher.Constraint("Horizontal", 31, 2, 36, 2))
sketch4.addConstraint(Sketcher.Constraint("Horizontal", 30, 2, 37, 2))
sketch4.addConstraint(Sketcher.Constraint("Horizontal", 43, 2, 44, 2))
sketch4.addConstraint(Sketcher.Constraint("Horizontal", 42, 2, 46, 2))
sketch4.addConstraint(Sketcher.Constraint("Horizontal", 45, 2, 48, 2))
sketch4.addConstraint(Sketcher.Constraint("Horizontal", 47, 2, 50, 2))
sketch4.addConstraint(Sketcher.Constraint("Horizontal", 49, 2, 52, 2))
sketch4.addConstraint(Sketcher.Constraint("Horizontal", 51, 2, 54, 2))
sketch4.addConstraint(Sketcher.Constraint("Horizontal", 53, 2, 56, 2))
sketch4.addConstraint(Sketcher.Constraint("Horizontal", 55, 2, 58, 2))
sketch4.addConstraint(Sketcher.Constraint("Vertical", 1, 2, 4, 2))
sketch4.addConstraint(Sketcher.Constraint("Vertical", 3, 2, 6, 2))
sketch4.addConstraint(Sketcher.Constraint("Vertical", 9, 2, 12, 2))
sketch4.addConstraint(Sketcher.Constraint("Vertical", 11, 2, 14, 2))
sketch4.addConstraint(Sketcher.Constraint("Vertical", 17, 2, 20, 2))
sketch4.addConstraint(Sketcher.Constraint("Vertical", 19, 2, 22, 2))
sketch4.addConstraint(Sketcher.Constraint("Vertical", 25, 2, 28, 2))
sketch4.addConstraint(Sketcher.Constraint("Vertical", 27, 2, 30, 2))
sketch4.addConstraint(Sketcher.Constraint("Vertical", 33, 2, 36, 2))
sketch4.addConstraint(Sketcher.Constraint("Vertical", 35, 2, 38, 2))
sketch4.addConstraint(Sketcher.Constraint("Vertical", 5, 2, 40, 2))
sketch4.addConstraint(Sketcher.Constraint("Vertical", 7, 2, 42, 2))
sketch4.addConstraint(Sketcher.Constraint("Vertical", 15, 2, 44, 2))
sketch4.addConstraint(Sketcher.Constraint("Vertical", 13, 2, 45, 2))
sketch4.addConstraint(Sketcher.Constraint("Vertical", 23, 2, 48, 2))
sketch4.addConstraint(Sketcher.Constraint("Vertical", 21, 2, 49, 2))
sketch4.addConstraint(Sketcher.Constraint("Vertical", 31, 2, 52, 2))
sketch4.addConstraint(Sketcher.Constraint("Vertical", 29, 2, 53, 2))
sketch4.addConstraint(Sketcher.Constraint("Vertical", 39, 2, 56, 2))
sketch4.addConstraint(Sketcher.Constraint("Vertical", 37, 2, 57, 2))
sketch4.addConstraint(Sketcher.Constraint("Equal", 6, 8))
sketch4.addConstraint(Sketcher.Constraint("Equal", 14, 16))
sketch4.addConstraint(Sketcher.Constraint("Equal", 22, 24))
sketch4.addConstraint(Sketcher.Constraint("Equal", 30, 32))
sketch4.addConstraint(Sketcher.Constraint("Equal", 39, 41))
sketch4.addConstraint(Sketcher.Constraint("DistanceX", 0, 2, 0, 1, Q("3.2 mm")))
sketch4.addConstraint(Sketcher.Constraint("DistanceY", 1, 2, 1, 1, Q("15.2 mm")))
sketch4.addConstraint(Sketcher.Constraint("DistanceY", 5, 2, 5, 1, Q("10.2 mm")))
sketch4.addConstraint(Sketcher.Constraint("DistanceX", 8, 2, 0, 2, Q("10 mm")))
sketch4.addConstraint(Sketcher.Constraint("DistanceX", 16, 2, 8, 2, Q("10 mm")))
sketch4.addConstraint(Sketcher.Constraint("DistanceX", 24, 2, 16, 2, Q("10 mm")))
sketch4.addConstraint(Sketcher.Constraint("DistanceX", 32, 2, 24, 2, Q("10 mm")))
sketch4.addConstraint(Sketcher.Constraint("DistanceY", 41, 2, 5, 2, Q("25 mm")))
sketch4.addConstraint(Sketcher.Constraint("DistanceX", -1, 1, 0, 2, Q("172.9 mm")))
sketch4.addConstraint(Sketcher.Constraint("DistanceY", -1, 1, 0, 2, Q("59.6 mm")))
sketch4.addConstraint(Sketcher.Constraint("DistanceY", -1, 1, 4, 2, Q("32.1 mm")))
pocket1 = doc.addObject("PartDesign::Pocket", "Pocket")
body.addObject(pocket1)
pocket1.Profile = sketch4
pocket1.Length = 3

doc.recompute()
